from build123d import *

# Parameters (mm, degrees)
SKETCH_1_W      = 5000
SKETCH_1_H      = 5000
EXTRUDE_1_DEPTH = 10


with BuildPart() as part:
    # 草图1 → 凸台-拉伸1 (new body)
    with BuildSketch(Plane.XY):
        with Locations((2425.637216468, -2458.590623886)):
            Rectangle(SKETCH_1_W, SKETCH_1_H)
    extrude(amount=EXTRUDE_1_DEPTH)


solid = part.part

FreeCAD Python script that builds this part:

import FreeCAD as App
import Part
import Sketcher

V = App.Vector
Q = App.Units.Quantity

doc = App.newDocument("Part")
body = doc.addObject("PartDesign::Body", "Body")

# Sketch on XY plane
sketch1 = doc.addObject("Sketcher::SketchObject", "Sketch")
body.addObject(sketch1)
sketch1.AttachmentSupport = (doc.XY_Plane, [""])
sketch1.MapMode = "FlatFace"
sketch1.addGeometry([
    Part.LineSegment(V(-74, 41, 0), V(-74, -4959, 0)),
    Part.LineSegment(V(-74, -4959, 0), V(4926, -4959, 0)),
    Part.LineSegment(V(4926, -4959, 0), V(4926, 41, 0)),
    Part.LineSegment(V(4926, 41, 0), V(-74, 41, 0)),
], False)
sketch1.addConstraint([
    Sketcher.Constraint("Coincident", 0, 2, 1, 1),
    Sketcher.Constraint("Coincident", 1, 2, 2, 1),
    Sketcher.Constraint("Coincident", 2, 2, 3, 1),
    Sketcher.Constraint("Coincident", 3, 2, 0, 1),
    Sketcher.Constraint("Vertical", 0),
    Sketcher.Constraint("Horizontal", 1),
    Sketcher.Constraint("Vertical", 2),
    Sketcher.Constraint("Horizontal", 3),
    Sketcher.Constraint("Equal", 3, 0),
    Sketcher.Constraint("DistanceX", 1, 1, 1, 2, Q("5000 mm")),
    Sketcher.Constraint("DistanceX", 0, 2, -1, 1, Q("74.362784 mm")),
    Sketcher.Constraint("DistanceY", 0, 2, -1, 1, Q("4958.590624 mm")),
])
pad1 = doc.addObject("PartDesign::Pad", "Pad")
body.addObject(pad1)
pad1.Profile = sketch1
pad1.Length = 10

doc.recompute()
